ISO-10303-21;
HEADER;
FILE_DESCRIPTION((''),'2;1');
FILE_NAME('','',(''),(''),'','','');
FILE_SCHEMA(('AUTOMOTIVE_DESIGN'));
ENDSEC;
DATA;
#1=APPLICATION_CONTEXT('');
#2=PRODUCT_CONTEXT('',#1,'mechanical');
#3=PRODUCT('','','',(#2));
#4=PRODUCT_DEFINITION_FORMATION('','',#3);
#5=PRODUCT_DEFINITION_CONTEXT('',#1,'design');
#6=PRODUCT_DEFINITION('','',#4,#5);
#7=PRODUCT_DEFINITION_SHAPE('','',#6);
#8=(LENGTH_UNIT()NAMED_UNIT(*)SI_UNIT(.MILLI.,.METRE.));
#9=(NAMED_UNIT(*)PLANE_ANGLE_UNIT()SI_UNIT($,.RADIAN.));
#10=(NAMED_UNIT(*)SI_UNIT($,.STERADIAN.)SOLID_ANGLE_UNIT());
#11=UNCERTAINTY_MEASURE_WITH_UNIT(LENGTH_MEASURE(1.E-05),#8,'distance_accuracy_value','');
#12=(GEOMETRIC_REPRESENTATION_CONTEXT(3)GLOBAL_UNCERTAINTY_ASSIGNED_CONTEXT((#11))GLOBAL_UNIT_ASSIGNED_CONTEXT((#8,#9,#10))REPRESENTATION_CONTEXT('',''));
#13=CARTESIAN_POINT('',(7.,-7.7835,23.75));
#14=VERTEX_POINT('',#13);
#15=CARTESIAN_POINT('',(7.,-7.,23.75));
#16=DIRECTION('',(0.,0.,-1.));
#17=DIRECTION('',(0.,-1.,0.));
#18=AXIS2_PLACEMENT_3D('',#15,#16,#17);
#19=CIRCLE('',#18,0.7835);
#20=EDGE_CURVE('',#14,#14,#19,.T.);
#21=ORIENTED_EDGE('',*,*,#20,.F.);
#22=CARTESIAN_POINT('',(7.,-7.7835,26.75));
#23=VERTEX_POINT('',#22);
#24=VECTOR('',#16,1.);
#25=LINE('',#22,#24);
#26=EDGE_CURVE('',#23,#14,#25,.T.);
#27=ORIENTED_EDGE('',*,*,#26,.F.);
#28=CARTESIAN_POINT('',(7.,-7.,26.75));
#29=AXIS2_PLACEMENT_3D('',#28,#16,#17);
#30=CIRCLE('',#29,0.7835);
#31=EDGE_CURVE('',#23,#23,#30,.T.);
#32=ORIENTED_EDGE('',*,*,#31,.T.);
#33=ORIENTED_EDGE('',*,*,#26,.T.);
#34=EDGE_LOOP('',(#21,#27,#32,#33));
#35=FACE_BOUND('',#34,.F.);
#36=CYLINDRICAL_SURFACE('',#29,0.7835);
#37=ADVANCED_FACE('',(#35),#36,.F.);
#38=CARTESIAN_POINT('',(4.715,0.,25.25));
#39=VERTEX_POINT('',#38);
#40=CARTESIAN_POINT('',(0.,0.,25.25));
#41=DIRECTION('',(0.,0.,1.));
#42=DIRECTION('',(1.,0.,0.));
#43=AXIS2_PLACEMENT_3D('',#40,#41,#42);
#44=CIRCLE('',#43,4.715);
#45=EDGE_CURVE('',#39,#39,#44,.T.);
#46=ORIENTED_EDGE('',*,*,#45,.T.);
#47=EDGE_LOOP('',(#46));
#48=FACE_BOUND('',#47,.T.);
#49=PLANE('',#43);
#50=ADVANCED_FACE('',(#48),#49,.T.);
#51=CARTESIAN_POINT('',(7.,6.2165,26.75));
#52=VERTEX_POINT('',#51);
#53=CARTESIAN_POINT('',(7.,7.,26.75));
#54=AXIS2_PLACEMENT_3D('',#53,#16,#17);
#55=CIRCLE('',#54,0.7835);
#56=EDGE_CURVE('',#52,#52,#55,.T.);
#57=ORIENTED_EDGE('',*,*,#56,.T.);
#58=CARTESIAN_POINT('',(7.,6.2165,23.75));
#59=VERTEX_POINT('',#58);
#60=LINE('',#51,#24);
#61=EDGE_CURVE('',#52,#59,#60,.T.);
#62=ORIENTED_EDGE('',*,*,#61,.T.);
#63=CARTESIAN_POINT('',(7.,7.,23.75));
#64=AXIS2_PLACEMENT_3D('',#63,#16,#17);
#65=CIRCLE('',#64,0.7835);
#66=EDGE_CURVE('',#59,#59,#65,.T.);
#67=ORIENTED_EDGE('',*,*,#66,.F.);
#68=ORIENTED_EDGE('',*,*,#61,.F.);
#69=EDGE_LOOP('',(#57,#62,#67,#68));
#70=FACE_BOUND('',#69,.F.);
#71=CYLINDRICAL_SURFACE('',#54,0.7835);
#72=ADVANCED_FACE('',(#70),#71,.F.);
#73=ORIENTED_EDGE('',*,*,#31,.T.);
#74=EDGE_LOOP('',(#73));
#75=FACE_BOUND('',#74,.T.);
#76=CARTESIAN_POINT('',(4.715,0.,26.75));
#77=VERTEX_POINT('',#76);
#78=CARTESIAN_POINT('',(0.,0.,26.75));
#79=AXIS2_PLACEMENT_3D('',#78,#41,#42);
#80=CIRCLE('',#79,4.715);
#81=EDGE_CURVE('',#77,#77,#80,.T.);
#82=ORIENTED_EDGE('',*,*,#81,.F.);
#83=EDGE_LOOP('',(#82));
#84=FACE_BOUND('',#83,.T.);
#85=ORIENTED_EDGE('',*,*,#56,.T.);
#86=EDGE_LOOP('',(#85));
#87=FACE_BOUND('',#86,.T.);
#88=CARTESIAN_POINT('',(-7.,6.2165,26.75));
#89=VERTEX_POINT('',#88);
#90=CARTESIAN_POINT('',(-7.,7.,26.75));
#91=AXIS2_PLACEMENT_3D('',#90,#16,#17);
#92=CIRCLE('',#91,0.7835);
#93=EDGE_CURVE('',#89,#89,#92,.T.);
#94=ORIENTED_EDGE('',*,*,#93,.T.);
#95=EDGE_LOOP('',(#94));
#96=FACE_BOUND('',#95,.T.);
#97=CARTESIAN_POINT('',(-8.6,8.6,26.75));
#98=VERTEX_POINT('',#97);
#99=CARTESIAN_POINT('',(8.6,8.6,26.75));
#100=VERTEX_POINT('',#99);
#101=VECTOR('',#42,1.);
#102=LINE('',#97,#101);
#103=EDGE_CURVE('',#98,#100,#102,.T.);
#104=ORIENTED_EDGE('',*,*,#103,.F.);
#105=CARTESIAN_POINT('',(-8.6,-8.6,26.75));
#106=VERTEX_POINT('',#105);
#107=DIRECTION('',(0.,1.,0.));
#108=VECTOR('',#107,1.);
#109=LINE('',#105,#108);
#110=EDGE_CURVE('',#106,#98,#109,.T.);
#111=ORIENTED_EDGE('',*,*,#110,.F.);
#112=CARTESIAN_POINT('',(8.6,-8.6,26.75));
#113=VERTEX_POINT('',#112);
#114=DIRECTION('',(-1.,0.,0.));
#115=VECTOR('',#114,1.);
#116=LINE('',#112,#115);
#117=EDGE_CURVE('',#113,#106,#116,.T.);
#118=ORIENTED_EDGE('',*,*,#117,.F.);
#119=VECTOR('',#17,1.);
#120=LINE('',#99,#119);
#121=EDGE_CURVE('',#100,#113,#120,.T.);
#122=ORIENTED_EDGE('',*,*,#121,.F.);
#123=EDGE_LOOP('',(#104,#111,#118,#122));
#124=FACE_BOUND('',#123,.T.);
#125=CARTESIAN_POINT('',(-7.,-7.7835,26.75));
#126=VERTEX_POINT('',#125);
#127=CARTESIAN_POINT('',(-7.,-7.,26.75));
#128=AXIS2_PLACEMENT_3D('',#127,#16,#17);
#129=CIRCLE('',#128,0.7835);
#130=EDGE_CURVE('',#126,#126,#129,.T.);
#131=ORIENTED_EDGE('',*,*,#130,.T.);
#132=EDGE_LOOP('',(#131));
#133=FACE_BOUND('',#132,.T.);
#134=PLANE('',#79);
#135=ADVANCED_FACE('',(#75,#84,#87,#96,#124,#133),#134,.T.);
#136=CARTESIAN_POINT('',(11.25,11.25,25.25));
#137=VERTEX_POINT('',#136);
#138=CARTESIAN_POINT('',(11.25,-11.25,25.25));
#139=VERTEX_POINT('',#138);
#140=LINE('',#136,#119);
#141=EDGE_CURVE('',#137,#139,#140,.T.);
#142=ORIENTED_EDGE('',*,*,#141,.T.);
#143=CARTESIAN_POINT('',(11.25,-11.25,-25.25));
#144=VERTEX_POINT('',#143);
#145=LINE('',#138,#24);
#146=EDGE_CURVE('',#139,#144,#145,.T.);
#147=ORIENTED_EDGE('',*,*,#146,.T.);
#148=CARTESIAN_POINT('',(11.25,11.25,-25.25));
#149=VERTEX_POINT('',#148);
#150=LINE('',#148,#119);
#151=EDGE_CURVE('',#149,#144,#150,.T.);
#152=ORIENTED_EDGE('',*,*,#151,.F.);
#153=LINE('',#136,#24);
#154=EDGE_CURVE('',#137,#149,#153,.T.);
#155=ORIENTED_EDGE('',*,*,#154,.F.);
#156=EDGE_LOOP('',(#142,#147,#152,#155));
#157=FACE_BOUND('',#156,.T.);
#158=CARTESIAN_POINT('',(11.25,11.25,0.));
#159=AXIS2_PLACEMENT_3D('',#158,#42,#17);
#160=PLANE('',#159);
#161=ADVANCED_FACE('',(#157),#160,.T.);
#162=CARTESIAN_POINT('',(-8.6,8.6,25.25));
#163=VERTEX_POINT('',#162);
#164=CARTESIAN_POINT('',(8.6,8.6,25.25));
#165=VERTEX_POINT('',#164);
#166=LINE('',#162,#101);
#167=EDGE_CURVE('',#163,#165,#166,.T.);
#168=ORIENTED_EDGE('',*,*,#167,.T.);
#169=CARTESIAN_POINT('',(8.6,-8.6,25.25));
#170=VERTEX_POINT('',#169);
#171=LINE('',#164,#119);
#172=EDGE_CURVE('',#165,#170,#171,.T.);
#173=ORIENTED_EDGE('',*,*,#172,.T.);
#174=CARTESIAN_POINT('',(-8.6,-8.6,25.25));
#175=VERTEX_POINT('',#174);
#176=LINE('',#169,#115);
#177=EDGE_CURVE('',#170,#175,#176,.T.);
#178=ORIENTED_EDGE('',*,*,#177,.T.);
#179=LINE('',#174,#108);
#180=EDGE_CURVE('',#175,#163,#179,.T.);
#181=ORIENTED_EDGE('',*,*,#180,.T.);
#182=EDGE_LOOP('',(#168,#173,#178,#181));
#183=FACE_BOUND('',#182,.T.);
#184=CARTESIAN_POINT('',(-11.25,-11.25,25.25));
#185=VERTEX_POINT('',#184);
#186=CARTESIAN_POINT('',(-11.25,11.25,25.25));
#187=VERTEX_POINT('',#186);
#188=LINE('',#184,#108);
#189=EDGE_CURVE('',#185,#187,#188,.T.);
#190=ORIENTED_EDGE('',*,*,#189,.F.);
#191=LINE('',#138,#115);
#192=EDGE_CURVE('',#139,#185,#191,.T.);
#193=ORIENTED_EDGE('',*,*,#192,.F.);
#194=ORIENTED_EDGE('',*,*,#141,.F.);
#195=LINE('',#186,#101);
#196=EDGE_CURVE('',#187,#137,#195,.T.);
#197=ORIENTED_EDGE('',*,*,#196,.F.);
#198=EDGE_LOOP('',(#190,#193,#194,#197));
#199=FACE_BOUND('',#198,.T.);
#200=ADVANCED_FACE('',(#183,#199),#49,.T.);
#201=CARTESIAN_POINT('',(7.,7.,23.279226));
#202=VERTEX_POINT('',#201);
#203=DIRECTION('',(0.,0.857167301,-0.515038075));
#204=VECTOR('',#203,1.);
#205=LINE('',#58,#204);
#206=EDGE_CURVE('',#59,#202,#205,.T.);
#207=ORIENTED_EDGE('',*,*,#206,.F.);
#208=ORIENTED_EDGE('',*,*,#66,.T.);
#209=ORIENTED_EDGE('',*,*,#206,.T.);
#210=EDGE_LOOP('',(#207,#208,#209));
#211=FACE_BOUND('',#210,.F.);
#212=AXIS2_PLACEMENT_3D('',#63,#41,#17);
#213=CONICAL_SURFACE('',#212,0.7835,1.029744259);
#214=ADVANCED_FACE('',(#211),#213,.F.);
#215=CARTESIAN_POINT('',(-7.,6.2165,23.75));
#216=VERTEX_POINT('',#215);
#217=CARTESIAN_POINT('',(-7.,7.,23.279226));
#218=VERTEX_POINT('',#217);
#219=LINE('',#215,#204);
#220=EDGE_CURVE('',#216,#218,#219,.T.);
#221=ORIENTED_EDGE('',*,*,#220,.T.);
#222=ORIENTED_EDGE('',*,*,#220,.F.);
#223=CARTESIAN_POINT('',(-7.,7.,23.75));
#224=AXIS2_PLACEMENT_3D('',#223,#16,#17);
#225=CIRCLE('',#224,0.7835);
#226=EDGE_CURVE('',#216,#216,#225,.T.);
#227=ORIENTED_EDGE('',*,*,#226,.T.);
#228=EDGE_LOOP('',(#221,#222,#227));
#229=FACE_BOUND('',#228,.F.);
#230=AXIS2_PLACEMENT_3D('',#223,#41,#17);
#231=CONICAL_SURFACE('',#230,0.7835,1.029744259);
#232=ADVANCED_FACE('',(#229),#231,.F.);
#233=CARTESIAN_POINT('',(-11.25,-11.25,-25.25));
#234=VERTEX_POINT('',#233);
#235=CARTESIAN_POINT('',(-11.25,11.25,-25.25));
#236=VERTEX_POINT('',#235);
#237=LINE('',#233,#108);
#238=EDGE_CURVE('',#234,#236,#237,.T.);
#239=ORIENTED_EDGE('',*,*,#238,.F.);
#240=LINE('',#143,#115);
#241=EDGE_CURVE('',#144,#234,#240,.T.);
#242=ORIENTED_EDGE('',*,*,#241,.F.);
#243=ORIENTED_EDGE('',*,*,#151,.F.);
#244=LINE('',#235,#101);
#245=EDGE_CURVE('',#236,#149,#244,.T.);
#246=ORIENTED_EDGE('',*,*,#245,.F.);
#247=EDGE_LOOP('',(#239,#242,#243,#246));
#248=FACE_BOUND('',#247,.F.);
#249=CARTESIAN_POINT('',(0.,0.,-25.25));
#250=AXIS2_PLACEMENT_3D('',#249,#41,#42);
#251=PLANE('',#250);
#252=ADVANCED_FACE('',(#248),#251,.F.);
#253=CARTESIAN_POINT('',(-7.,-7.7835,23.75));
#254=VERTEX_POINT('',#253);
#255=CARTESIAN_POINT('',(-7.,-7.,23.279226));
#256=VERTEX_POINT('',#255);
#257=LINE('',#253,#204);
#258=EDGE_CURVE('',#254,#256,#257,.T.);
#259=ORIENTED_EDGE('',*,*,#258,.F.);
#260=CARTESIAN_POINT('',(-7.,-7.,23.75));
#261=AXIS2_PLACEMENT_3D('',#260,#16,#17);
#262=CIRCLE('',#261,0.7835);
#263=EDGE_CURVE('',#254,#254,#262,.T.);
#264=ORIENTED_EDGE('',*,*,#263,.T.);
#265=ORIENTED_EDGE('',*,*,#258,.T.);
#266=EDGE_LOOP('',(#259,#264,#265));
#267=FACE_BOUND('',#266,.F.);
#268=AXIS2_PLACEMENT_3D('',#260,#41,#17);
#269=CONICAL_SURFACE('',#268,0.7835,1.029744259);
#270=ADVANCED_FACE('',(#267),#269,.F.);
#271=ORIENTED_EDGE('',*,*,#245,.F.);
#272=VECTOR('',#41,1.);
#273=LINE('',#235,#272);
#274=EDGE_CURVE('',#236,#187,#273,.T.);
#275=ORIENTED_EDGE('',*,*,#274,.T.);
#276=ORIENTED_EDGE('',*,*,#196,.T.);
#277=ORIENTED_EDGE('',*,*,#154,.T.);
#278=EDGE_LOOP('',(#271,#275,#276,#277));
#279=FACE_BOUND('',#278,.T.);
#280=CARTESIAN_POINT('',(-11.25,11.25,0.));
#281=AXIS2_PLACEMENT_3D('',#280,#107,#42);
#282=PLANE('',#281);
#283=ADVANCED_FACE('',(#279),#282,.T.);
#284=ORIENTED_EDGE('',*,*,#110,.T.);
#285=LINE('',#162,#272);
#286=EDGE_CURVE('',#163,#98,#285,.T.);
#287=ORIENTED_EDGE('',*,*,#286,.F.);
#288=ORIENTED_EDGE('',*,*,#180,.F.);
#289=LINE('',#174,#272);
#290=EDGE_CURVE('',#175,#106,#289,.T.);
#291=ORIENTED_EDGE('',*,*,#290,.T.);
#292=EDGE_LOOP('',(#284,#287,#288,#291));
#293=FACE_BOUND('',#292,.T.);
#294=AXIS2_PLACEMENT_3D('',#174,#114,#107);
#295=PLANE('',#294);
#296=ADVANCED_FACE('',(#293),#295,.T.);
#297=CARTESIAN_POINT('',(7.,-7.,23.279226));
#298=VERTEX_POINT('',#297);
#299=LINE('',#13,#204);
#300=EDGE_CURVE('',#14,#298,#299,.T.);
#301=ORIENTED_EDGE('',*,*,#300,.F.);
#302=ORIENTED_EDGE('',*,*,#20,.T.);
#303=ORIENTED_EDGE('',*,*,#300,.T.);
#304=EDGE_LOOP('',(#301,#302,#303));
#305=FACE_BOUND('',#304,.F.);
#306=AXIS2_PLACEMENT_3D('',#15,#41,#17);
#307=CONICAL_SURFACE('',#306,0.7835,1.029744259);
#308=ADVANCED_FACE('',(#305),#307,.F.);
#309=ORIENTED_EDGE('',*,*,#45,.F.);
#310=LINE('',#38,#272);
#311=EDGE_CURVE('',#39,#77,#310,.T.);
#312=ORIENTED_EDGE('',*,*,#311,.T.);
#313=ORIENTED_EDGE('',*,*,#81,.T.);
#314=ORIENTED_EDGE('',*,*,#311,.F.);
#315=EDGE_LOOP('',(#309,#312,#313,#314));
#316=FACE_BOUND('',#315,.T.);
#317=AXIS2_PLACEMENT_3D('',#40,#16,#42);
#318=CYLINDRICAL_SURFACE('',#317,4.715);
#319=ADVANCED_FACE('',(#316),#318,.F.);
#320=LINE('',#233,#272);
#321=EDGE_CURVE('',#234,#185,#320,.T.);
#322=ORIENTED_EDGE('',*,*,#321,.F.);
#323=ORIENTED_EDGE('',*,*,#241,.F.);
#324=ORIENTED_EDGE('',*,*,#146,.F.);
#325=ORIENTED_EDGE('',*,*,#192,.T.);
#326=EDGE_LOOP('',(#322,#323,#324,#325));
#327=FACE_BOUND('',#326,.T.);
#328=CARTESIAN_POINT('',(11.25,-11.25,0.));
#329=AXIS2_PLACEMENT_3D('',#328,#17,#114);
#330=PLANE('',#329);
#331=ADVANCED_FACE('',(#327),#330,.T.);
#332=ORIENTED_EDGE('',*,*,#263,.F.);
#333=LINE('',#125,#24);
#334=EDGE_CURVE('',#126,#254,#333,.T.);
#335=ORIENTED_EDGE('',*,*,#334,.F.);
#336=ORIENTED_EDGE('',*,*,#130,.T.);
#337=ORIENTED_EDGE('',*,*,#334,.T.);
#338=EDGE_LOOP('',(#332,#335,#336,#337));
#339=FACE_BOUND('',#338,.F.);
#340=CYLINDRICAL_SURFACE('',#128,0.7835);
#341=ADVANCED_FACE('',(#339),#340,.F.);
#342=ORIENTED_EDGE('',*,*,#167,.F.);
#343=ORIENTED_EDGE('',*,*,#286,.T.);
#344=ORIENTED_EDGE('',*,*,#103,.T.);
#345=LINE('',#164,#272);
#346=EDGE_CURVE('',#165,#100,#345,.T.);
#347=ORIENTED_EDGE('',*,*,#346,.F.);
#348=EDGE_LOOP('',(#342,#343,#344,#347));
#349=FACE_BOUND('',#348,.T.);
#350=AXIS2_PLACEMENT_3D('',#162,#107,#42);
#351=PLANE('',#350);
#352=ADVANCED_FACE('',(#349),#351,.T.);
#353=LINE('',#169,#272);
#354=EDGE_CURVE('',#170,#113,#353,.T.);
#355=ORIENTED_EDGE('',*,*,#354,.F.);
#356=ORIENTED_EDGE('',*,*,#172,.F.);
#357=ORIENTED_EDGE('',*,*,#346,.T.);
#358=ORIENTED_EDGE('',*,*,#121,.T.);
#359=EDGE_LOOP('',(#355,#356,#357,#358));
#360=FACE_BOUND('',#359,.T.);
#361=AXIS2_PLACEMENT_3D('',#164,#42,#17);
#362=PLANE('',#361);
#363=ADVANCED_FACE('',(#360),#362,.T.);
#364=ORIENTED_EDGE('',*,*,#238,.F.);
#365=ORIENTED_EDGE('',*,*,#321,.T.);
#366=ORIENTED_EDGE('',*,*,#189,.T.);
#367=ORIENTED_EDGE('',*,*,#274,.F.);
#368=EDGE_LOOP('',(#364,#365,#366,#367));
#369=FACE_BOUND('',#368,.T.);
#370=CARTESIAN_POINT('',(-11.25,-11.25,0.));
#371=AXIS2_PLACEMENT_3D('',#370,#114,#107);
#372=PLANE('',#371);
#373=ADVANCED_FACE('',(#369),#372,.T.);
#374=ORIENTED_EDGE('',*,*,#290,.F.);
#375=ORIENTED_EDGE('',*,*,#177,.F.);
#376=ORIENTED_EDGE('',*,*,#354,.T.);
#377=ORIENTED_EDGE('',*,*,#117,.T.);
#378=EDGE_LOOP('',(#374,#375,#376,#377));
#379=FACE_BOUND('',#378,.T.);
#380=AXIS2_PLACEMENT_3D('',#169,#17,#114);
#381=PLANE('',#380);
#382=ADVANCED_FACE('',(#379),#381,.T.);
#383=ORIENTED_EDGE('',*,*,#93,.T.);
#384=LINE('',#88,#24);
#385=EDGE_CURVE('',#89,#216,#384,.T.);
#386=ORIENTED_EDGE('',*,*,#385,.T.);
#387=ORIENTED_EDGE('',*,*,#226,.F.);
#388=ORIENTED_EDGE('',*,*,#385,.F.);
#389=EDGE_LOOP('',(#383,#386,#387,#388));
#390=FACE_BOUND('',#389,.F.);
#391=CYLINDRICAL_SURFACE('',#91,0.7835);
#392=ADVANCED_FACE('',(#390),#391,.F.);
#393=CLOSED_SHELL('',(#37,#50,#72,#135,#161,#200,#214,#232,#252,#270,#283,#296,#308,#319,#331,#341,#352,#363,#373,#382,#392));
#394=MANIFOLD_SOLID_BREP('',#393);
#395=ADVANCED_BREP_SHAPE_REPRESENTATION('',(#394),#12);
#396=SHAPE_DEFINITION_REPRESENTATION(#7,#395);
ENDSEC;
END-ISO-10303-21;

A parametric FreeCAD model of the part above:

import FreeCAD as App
import Part
import Sketcher

V = App.Vector
Q = App.Units.Quantity

doc = App.newDocument("Part")
params = doc.addObject("Spreadsheet::Sheet", "Params")
for row, (alias, value) in enumerate([
    ("sketch1_width", "22.5 mm"),
    ("pad1_length", "50.5 mm"),
    ("sketch2_diameter", "9.43 mm"),
    ("sketch2_width", "17.2 mm"),
    ("pad2_length", "1.5 mm"),
    ("hole_diameter", "1.567 mm"),
    ("hole_depth", "3 mm"),
], start=1):
    params.set(f"A{row}", alias)
    params.set(f"B{row}", "=" + value)
    params.setAlias(f"B{row}", alias)

body = doc.addObject("PartDesign::Body", "Body")

# Sketch on XY plane
sketch1 = doc.addObject("Sketcher::SketchObject", "Sketch")
body.addObject(sketch1)
sketch1.AttachmentSupport = (doc.XY_Plane, [""])
sketch1.MapMode = "FlatFace"
sketch1.addGeometry([
    Part.LineSegment(V(11.25, 11.25, 0), V(-11.25, 11.25, 0)),
    Part.LineSegment(V(-11.25, 11.25, 0), V(-11.25, -11.25, 0)),
    Part.LineSegment(V(-11.25, -11.25, 0), V(11.25, -11.25, 0)),
    Part.LineSegment(V(11.25, -11.25, 0), V(11.25, 11.25, 0)),
], False)
sketch1.addConstraint([
    Sketcher.Constraint("Coincident", 0, 2, 1, 1),
    Sketcher.Constraint("Coincident", 1, 2, 2, 1),
    Sketcher.Constraint("Coincident", 2, 2, 3, 1),
    Sketcher.Constraint("Coincident", 3, 2, 0, 1),
    Sketcher.Constraint("Horizontal", 0),
    Sketcher.Constraint("Vertical", 1),
    Sketcher.Constraint("Horizontal", 2),
    Sketcher.Constraint("Vertical", 3),
    Sketcher.Constraint("Symmetric", 0, 2, 2, 2, -1, 1),
    Sketcher.Constraint("Equal", 2, 1),
    Sketcher.Constraint("DistanceX", 0, 2, 0, 1, Q("22.5 mm")),
])
sketch1.setExpression("Constraints[10]", "Params.sketch1_width")
pad1 = doc.addObject("PartDesign::Pad", "Pad")
body.addObject(pad1)
pad1.Profile = sketch1
pad1.setExpression("Length", "Params.pad1_length")
pad1.Midplane = True

# Sketch on XY plane
sketch2 = doc.addObject("Sketcher::SketchObject", "Sketch001")
body.addObject(sketch2)
sketch2.AttachmentSupport = (doc.XY_Plane, [""])
sketch2.MapMode = "FlatFace"
sketch2.AttachmentOffset = App.Placement(V(0, 0, 25.25), App.Rotation())
sketch2.addGeometry([
    Part.LineSegment(V(8.6, 8.6, 0), V(-8.6, 8.6, 0)),  # 0
    Part.LineSegment(V(-8.6, 8.6, 0), V(-8.6, -8.6, 0)),  # 1
    Part.LineSegment(V(-8.6, -8.6, 0), V(8.6, -8.6, 0)),  # 2
    Part.LineSegment(V(8.6, -8.6, 0), V(8.6, 8.6, 0)),  # 3
    Part.Circle(V(0, 0, 0), V(0, 0, 1), 4.715),  # 4
], False)
sketch2.addConstraint([
    Sketcher.Constraint("Coincident", 0, 2, 1, 1),
    Sketcher.Constraint("Coincident", 1, 2, 2, 1),
    Sketcher.Constraint("Coincident", 2, 2, 3, 1),
    Sketcher.Constraint("Coincident", 3, 2, 0, 1),
    Sketcher.Constraint("Horizontal", 0),
    Sketcher.Constraint("Vertical", 1),
    Sketcher.Constraint("Horizontal", 2),
    Sketcher.Constraint("Vertical", 3),
    Sketcher.Constraint("Coincident", 4, 3, -1, 1),
    Sketcher.Constraint("Symmetric", 0, 2, 2, 2, -1, 1),
    Sketcher.Constraint("Equal", 2, 1),
    Sketcher.Constraint("Diameter", 4, Q("9.43 mm")),
    Sketcher.Constraint("DistanceX", 0, 2, 0, 1, Q("17.2 mm")),
])
sketch2.setExpression("Constraints[11]", "Params.sketch2_diameter")
sketch2.setExpression("Constraints[12]", "Params.sketch2_width")
pad2 = doc.addObject("PartDesign::Pad", "Pad001")
body.addObject(pad2)
pad2.Profile = sketch2
pad2.setExpression("Length", "Params.pad2_length")

# Sketch on XY plane
sketch3 = doc.addObject("Sketcher::SketchObject", "Sketch002")
body.addObject(sketch3)
sketch3.AttachmentSupport = (doc.XY_Plane, [""])
sketch3.MapMode = "FlatFace"
sketch3.AttachmentOffset = App.Placement(V(0, 0, 26.75), App.Rotation())
sketch3.addGeometry([
    Part.Circle(V(-7, 7, 0), V(0, 0, 1), 0.7835),
    Part.Circle(V(7, 7, 0), V(0, 0, 1), 0.7835),
    Part.Circle(V(-7, -7, 0), V(0, 0, 1), 0.7835),
    Part.Circle(V(7, -7, 0), V(0, 0, 1), 0.7835),
], False)
sketch3.addConstraint([
    Sketcher.Constraint("Equal", 0, 1),
    Sketcher.Constraint("Equal", 1, 2),
    Sketcher.Constraint("Equal", 2, 3),
    Sketcher.Constraint("Symmetric", 1, 3, 2, 3, -1, 1),
    Sketcher.Constraint("Symmetric", 0, 3, 3, 3, -1, 1),
    Sketcher.Constraint("Symmetric", 0, 3, 1, 3, -2),
    Sketcher.Constraint("Diameter", 0, Q("1.567 mm")),
    Sketcher.Constraint("DistanceX", 0, 3, -1, 1, Q("7 mm")),
    Sketcher.Constraint("DistanceY", -1, 1, 0, 3, Q("7 mm")),
])
doc.recompute()
hole = doc.addObject("PartDesign::Hole", "Hole")
body.addObject(hole)
hole.Profile = sketch3
hole.ThreadType = "None"
hole.setExpression("Diameter", "Params.hole_diameter")
hole.DepthType = "Dimension"
hole.setExpression("Depth", "Params.hole_depth")
hole.DrillPoint = "Angled"
hole.DrillPointAngle = 118

doc.recompute()
